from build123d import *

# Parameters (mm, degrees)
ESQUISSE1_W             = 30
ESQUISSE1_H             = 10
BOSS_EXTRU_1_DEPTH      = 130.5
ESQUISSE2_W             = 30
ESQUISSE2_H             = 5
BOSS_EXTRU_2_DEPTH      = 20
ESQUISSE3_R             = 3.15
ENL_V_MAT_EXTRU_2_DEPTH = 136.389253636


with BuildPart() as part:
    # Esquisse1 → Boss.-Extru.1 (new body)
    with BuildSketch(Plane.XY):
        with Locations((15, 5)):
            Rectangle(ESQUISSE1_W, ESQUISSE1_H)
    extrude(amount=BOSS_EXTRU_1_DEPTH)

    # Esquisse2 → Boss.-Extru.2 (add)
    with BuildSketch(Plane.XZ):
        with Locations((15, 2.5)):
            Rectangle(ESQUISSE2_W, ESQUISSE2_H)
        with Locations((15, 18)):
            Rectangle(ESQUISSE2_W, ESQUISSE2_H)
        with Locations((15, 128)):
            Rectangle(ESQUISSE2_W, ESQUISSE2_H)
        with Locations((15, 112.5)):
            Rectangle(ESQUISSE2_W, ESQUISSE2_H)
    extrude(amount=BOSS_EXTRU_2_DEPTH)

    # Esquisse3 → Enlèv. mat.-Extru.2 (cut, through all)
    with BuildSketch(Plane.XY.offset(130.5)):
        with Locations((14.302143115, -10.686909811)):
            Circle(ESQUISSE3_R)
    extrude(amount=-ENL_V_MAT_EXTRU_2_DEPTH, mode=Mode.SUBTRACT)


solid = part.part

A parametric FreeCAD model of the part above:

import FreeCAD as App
import Part
import Sketcher

V = App.Vector
Q = App.Units.Quantity


def add_polygon(sketch, points):
    """Adds a closed chain of lines whose ends are joined by coincident constraints."""
    first, n = sketch.GeometryCount, len(points)
    for a, b in zip(points, points[1:] + points[:1]):
        sketch.addGeometry(Part.LineSegment(App.Vector(*a, 0), App.Vector(*b, 0)), False)
    for i in range(n):
        sketch.addConstraint(Sketcher.Constraint("Coincident", first + i, 2, first + (i + 1) % n, 1))

doc = App.newDocument("Part")
body = doc.addObject("PartDesign::Body", "Body")

# Sketch on XY plane
sketch1 = doc.addObject("Sketcher::SketchObject", "Sketch")
body.addObject(sketch1)
sketch1.AttachmentSupport = (doc.XY_Plane, [""])
sketch1.MapMode = "FlatFace"
add_polygon(sketch1, [(0, 10), (0, 0), (30, 0), (30, 10)])  # lines 0-3
sketch1.addConstraint(Sketcher.Constraint("Vertical", 0))
sketch1.addConstraint(Sketcher.Constraint("Horizontal", 1))
sketch1.addConstraint(Sketcher.Constraint("Vertical", 2))
sketch1.addConstraint(Sketcher.Constraint("Horizontal", 3))
sketch1.addConstraint(Sketcher.Constraint("Coincident", 0, 2, -1, 1))
sketch1.addConstraint(Sketcher.Constraint("DistanceX", 1, 1, 1, 2, Q("30 mm")))
sketch1.addConstraint(Sketcher.Constraint("DistanceY", 0, 2, 0, 1, Q("10 mm")))
pad1 = doc.addObject("PartDesign::Pad", "Pad")
body.addObject(pad1)
pad1.Profile = sketch1
pad1.Length = 130.5

# Sketch on XZ plane
sketch2 = doc.addObject("Sketcher::SketchObject", "Sketch001")
body.addObject(sketch2)
sketch2.AttachmentSupport = (doc.XZ_Plane, [""])
sketch2.MapMode = "FlatFace"
add_polygon(sketch2, [(0, 5), (0, 0), (30, 0), (30, 5)])  # lines 0-3
add_polygon(sketch2, [(0, 20), (0, 16), (30, 16), (30, 20)])  # lines 4-7
add_polygon(sketch2, [(0, 130), (0, 126), (30, 126), (30, 130)])  # lines 8-11
add_polygon(sketch2, [(0, 115), (0, 110), (30, 110), (30, 115)])  # lines 12-15
sketch2.addConstraint(Sketcher.Constraint("Vertical", 0))
sketch2.addConstraint(Sketcher.Constraint("Horizontal", 1))
sketch2.addConstraint(Sketcher.Constraint("Vertical", 2))
sketch2.addConstraint(Sketcher.Constraint("Horizontal", 3))
sketch2.addConstraint(Sketcher.Constraint("Vertical", 4))
sketch2.addConstraint(Sketcher.Constraint("Horizontal", 5))
sketch2.addConstraint(Sketcher.Constraint("Vertical", 6))
sketch2.addConstraint(Sketcher.Constraint("Horizontal", 7))
sketch2.addConstraint(Sketcher.Constraint("Vertical", 8))
sketch2.addConstraint(Sketcher.Constraint("Horizontal", 9))
sketch2.addConstraint(Sketcher.Constraint("Vertical", 10))
sketch2.addConstraint(Sketcher.Constraint("Horizontal", 11))
sketch2.addConstraint(Sketcher.Constraint("Vertical", 12))
sketch2.addConstraint(Sketcher.Constraint("Horizontal", 13))
sketch2.addConstraint(Sketcher.Constraint("Vertical", 14))
sketch2.addConstraint(Sketcher.Constraint("Horizontal", 15))
sketch2.addConstraint(Sketcher.Constraint("Coincident", 0, 2, -1, 1))
sketch2.addConstraint(Sketcher.Constraint("PointOnObject", 4, 2, -2))
sketch2.addConstraint(Sketcher.Constraint("PointOnObject", 8, 2, -2))
sketch2.addConstraint(Sketcher.Constraint("PointOnObject", 12, 2, -2))
sketch2.addConstraint(Sketcher.Constraint("Vertical", 2, 2, 5, 2))
sketch2.addConstraint(Sketcher.Constraint("Vertical", 6, 2, 9, 2))
sketch2.addConstraint(Sketcher.Constraint("Vertical", 10, 2, 13, 2))
sketch2.addConstraint(Sketcher.Constraint("Equal", 2, 4))
sketch2.addConstraint(Sketcher.Constraint("Equal", 6, 8))
sketch2.addConstraint(Sketcher.Constraint("Equal", 10, 12))
sketch2.addConstraint(Sketcher.Constraint("DistanceX", 1, 1, 1, 2, Q("30 mm")))
sketch2.addConstraint(Sketcher.Constraint("DistanceY", 0, 2, 0, 1, Q("5 mm")))
sketch2.addConstraint(Sketcher.Constraint("DistanceY", -1, 1, 12, 2, Q("110 mm")))
sketch2.addConstraint(Sketcher.Constraint("DistanceY", 7, 2, 8, 2, Q("105 mm")))
sketch2.addConstraint(Sketcher.Constraint("DistanceY", -1, 1, 4, 2, Q("15.5 mm")))
pad2 = doc.addObject("PartDesign::Pad", "Pad001")
body.addObject(pad2)
pad2.Profile = sketch2
pad2.Length = 20

# Sketch on XY plane
sketch3 = doc.addObject("Sketcher::SketchObject", "Sketch002")
body.addObject(sketch3)
sketch3.AttachmentSupport = (doc.XY_Plane, [""])
sketch3.MapMode = "FlatFace"
sketch3.AttachmentOffset = App.Placement(V(0, 0, 130.5), App.Rotation())
sketch3.addGeometry(Part.Circle(V(14.3, -10.7, 0), V(0, 0, 1), 3.1), False)
sketch3.addConstraint(Sketcher.Constraint("Diameter", 0, Q("6.3 mm")))
sketch3.addConstraint(Sketcher.Constraint("DistanceY", 0, 3, -1, 1, Q("10.68691 mm")))
sketch3.addConstraint(Sketcher.Constraint("DistanceX", -1, 1, 0, 3, Q("14.302143 mm")))
pocket1 = doc.addObject("PartDesign::Pocket", "Pocket")
body.addObject(pocket1)
pocket1.Profile = sketch3
pocket1.Type = "ThroughAll"

doc.recompute()
